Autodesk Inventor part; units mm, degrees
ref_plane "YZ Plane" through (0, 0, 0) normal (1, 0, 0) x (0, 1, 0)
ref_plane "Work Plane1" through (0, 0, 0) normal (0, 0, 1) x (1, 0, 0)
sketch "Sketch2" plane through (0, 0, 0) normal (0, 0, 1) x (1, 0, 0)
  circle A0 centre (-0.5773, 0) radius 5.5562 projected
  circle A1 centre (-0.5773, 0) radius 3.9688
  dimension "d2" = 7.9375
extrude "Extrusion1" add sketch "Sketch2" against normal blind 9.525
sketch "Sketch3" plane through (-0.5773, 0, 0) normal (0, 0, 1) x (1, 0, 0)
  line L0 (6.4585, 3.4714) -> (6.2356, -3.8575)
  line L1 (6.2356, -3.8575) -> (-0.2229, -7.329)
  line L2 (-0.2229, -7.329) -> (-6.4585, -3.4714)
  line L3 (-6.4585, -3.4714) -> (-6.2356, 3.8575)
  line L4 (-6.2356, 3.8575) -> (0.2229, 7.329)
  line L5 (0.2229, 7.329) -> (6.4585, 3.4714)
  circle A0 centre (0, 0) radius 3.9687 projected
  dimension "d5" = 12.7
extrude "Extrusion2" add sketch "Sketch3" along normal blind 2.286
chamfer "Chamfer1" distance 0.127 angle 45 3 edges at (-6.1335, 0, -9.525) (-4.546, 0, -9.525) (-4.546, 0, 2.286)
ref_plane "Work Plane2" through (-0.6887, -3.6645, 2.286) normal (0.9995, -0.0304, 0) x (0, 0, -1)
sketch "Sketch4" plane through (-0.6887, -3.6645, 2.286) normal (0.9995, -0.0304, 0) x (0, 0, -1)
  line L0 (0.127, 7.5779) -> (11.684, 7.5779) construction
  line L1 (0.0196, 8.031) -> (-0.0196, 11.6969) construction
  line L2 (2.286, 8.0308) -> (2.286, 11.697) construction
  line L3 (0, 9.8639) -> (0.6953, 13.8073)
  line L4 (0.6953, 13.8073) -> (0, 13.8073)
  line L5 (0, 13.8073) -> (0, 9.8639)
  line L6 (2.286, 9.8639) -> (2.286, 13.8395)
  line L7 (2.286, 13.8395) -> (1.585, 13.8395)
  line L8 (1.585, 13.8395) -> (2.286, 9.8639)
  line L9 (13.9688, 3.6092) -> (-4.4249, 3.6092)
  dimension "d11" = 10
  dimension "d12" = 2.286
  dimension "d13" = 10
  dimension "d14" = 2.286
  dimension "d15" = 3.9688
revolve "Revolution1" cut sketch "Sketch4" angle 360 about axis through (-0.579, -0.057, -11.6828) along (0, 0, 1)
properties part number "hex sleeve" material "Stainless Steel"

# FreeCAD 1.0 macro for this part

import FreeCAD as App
import Part
import Sketcher
from FreeCAD import Vector
Q = App.Units.Quantity


def edges_at(feature, points):
    """Names of the edges that pass closest to the given points."""
    edges = feature.Shape.Edges
    near = lambda p: min(range(len(edges)), key=lambda i: edges[i].distToShape(Part.Vertex(*p))[0])
    return sorted({f"Edge{near(p) + 1}" for p in points})


def add_polygon(sketch, points):
    """Adds a closed chain of lines whose ends are joined by coincident constraints."""
    first, n = sketch.GeometryCount, len(points)
    for a, b in zip(points, points[1:] + points[:1]):
        sketch.addGeometry(Part.LineSegment(App.Vector(*a, 0), App.Vector(*b, 0)), False)
    for i in range(n):
        sketch.addConstraint(Sketcher.Constraint("Coincident", first + i, 2, first + (i + 1) % n, 1))

doc = App.newDocument("Part")
body = doc.addObject("PartDesign::Body", "Body")

# Sketch on XY plane
sketch1 = body.newObject("Sketcher::SketchObject", "Sketch")
sketch1.AttachmentSupport = (doc.getObject("XY_Plane"), [""])
sketch1.MapMode = "FlatFace"
sketch1.addGeometry([
    Part.Circle(Vector(-0.6, 0, 0), Vector(0, 0, 1), 5.6),
    Part.Circle(Vector(-0.6, 0, 0), Vector(0, 0, 1), 4),
], False)
sketch1.addConstraint([
    Sketcher.Constraint("Coincident", 1, 3, 0, 3),
    Sketcher.Constraint("PointOnObject", 0, 3, -1),
    Sketcher.Constraint("Diameter", 1, Q("0.3125 in")),
    Sketcher.Constraint("Diameter", 0, Q("0.4375 in")),
    Sketcher.Constraint("DistanceX", 0, 3, -1, 1, 0.5773),
])
pad1 = body.newObject("PartDesign::Pad", "Pad")
pad1.Profile = sketch1
pad1.Length = Q("0.375 in")
pad1.Reversed = True

# Sketch on XY plane
sketch2 = body.newObject("Sketcher::SketchObject", "Sketch001")
sketch2.AttachmentSupport = (doc.getObject("XY_Plane"), [""])
sketch2.MapMode = "FlatFace"
add_polygon(sketch2, [(5.7, -3.9), (5.9, 3.5), (-0.4, 7.3), (-6.8, 3.9), (-7, -3.5), (-0.8, -7.3)])  # lines 0-5
sketch2.addGeometry(Part.Circle(Vector(-0.6, 0, 0), Vector(0, 0, 1), 4), False)  # 6
sketch2.addConstraint([
    Sketcher.Constraint("PointOnObject", 6, 3, -1),
    Sketcher.Constraint("Parallel", 0, 3),
    Sketcher.Constraint("Parallel", 1, 4),
    Sketcher.Constraint("Parallel", 2, 5),
    Sketcher.Constraint("Equal", 0, 1),
    Sketcher.Constraint("Equal", 1, 2),
    Sketcher.Constraint("Equal", 2, 3),
    Sketcher.Constraint("Diameter", 6, Q("0.3125 in")),
    Sketcher.Constraint("DistanceX", 3, 2, -1, 1, Q("0.277 in")),
    Sketcher.Constraint("DistanceX", 4, 2, -1, 1, Q("0.0315 in")),
    Sketcher.Constraint("DistanceX", 2, 2, 6, 3, Q("0.2455 in")),
    Sketcher.Constraint("DistanceY", 0, 2, 2, 2, Q("0.0152 in")),
    Sketcher.Constraint("DistanceX", 6, 3, 5, 2, Q("0.2455 in")),
    Sketcher.Constraint("Distance", 0, 7.3323),
    Sketcher.Constraint("DistanceY", -1, 1, 0, 2, 3.4714),
])
pad2 = body.newObject("PartDesign::Pad", "Pad001")
pad2.Profile = sketch2
pad2.Length = Q("0.09 in")
doc.recompute()

chamfer = body.newObject("PartDesign::Chamfer", "Chamfer")
chamfer.Base = (pad2, edges_at(pad2, [(-6.133, 0, -9.525), (-4.546, 0, -9.525), (-4.546, 0, 2.286)]))
chamfer.Size = Q("0.005 in")

# Sketch on an angled plane
sketch3 = body.newObject("Sketcher::SketchObject", "Sketch002")
sketch3.Placement = App.Placement(Vector(-0.6887, -3.6645, 2.286), App.Rotation(Vector(0, 0, -1), Vector(0.030401149, 0.999537778, 0), Vector(0.999537778, -0.030401149, 0), "ZXY"))
add_polygon(sketch3, [(0, 13.8), (0, 9.9), (0.7, 13.8)])  # lines 0-2
add_polygon(sketch3, [(1.6, 13.8), (2.3, 9.9), (2.3, 13.8)])  # lines 3-5
sketch3.addGeometry(Part.LineSegment(Vector(2.3, 3.6, 0), Vector(0, 3.6, 0)), True)  # axis
sketch3.addConstraint([
    Sketcher.Constraint("Vertical", 0),
    Sketcher.Constraint("Horizontal", 2),
    Sketcher.Constraint("Vertical", 4),
    Sketcher.Constraint("Horizontal", 5),
    Sketcher.Constraint("Horizontal", 6),
    Sketcher.Constraint("PointOnObject", 0, 2, -2),
    Sketcher.Constraint("PointOnObject", 6, 2, -2),
    Sketcher.Constraint("Horizontal", 0, 2, 3, 2),
    Sketcher.Constraint("Vertical", 4, 2, 6, 1),
    Sketcher.Constraint("DistanceX", 6, 2, 6, 1, Q("0.09 in")),
    Sketcher.Constraint("Angle", 1, Q("80.0004 deg")),
    Sketcher.Constraint("Angle", 3, Q("-80 deg")),
    Sketcher.Constraint("DistanceX", 5, 2, 5, 1, Q("0.0276 in")),
    Sketcher.Constraint("DistanceX", 2, 2, 2, 1, 0.6953),
    Sketcher.Constraint("DistanceY", -1, 1, 1, 2, Q("0.5436 in")),
    Sketcher.Constraint("DistanceY", -1, 1, 6, 1, Q("0.1421 in")),
])
groove = body.newObject("PartDesign::Groove", "Groove")
groove.Profile = sketch3
groove.ReferenceAxis = (sketch3, ["Axis0"])
groove.Angle = 360

doc.recompute()
